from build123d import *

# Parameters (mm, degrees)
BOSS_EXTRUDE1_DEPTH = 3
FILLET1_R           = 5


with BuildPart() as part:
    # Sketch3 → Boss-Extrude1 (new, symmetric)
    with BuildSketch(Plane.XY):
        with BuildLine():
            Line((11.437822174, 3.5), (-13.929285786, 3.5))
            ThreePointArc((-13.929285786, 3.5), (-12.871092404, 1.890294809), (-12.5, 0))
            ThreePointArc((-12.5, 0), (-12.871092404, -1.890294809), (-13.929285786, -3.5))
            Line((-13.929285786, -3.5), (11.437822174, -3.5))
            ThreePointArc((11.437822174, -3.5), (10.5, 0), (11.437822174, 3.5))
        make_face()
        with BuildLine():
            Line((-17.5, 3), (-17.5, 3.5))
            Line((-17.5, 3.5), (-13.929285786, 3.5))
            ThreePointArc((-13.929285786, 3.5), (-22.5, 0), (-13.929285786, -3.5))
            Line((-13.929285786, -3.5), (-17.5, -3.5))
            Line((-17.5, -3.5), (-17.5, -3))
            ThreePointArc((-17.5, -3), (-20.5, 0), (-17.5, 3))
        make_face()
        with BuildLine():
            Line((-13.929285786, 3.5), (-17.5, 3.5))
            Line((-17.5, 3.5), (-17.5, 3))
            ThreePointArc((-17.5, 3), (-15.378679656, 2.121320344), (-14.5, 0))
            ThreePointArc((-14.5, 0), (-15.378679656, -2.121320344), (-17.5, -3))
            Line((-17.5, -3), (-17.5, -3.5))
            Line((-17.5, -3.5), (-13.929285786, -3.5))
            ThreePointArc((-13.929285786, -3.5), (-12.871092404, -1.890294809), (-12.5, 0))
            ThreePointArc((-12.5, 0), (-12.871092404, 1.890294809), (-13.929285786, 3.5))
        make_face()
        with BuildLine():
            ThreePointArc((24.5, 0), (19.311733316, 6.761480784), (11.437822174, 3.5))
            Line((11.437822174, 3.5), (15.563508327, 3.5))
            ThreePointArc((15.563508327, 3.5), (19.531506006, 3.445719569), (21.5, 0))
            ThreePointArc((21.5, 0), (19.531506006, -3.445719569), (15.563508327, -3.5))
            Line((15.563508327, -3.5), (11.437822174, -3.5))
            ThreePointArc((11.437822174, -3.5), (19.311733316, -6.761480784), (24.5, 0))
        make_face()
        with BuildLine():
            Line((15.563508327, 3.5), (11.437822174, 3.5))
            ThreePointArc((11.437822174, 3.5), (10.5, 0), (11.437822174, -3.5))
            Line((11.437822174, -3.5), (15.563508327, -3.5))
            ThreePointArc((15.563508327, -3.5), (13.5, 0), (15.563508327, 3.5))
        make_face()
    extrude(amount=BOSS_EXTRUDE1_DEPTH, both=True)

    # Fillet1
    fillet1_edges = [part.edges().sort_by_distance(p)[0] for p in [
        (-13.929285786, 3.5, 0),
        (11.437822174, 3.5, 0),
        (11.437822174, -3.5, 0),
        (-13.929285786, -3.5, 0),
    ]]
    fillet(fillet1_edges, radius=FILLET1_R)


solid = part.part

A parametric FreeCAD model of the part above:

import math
import FreeCAD as App
import Part
import Sketcher
Q = App.Units.Quantity


def edges_at(feature, points):
    """Names of the edges that pass closest to the given points."""
    edges = feature.Shape.Edges
    near = lambda p: min(range(len(edges)), key=lambda i: edges[i].distToShape(Part.Vertex(*p))[0])
    return sorted({f"Edge{near(p) + 1}" for p in points})

doc = App.newDocument("Part")
params = doc.addObject("Spreadsheet::Sheet", "Params")
for row, (alias, value) in enumerate([
    ("sketch1_radius", "5 mm"),
    ("sketch1_radius2", "7 mm"),
    ("sketch1_radius3", "4 mm"),
    ("sketch1_radius4", "3 mm"),
    ("pad1_length", "6 mm"),
    ("fillet_radius", "5 mm"),
], start=1):
    params.set(f"A{row}", alias)
    params.set(f"B{row}", "=" + value)
    params.setAlias(f"B{row}", alias)

body = doc.addObject("PartDesign::Body", "Body")

sketch1 = doc.addObject("Sketcher::SketchObject", "Sketch")
body.addObject(sketch1)
sketch1.AttachmentSupport = (doc.XY_Plane, [""])
sketch1.MapMode = "FlatFace"
sketch1.addGeometry([
    Part.LineSegment(App.Vector(11.4, 3.5, 0), App.Vector(-13.9, 3.5, 0)),
    Part.ArcOfCircle(Part.Circle(App.Vector(-17.5, 0, 0), App.Vector(0, 0, 1), 5), math.radians(44), math.radians(316)),
    Part.LineSegment(App.Vector(-13.9, -3.5, 0), App.Vector(11.4, -3.5, 0)),
    Part.ArcOfCircle(Part.Circle(App.Vector(17.5, 0, 0), App.Vector(0, 0, 1), 7), math.radians(-150), math.radians(0)),
    Part.ArcOfCircle(Part.Circle(App.Vector(17.5, 0, 0), App.Vector(0, 0, 1), 7), math.radians(0), math.radians(150)),
    Part.ArcOfCircle(Part.Circle(App.Vector(17.5, 0, 0), App.Vector(0, 0, 1), 4), math.radians(119), math.radians(241)),
    Part.ArcOfCircle(Part.Circle(App.Vector(17.5, 0, 0), App.Vector(0, 0, 1), 4), math.radians(0), math.radians(119)),
    Part.ArcOfCircle(Part.Circle(App.Vector(17.5, 0, 0), App.Vector(0, 0, 1), 4), math.radians(-119), math.radians(0)),
    Part.ArcOfCircle(Part.Circle(App.Vector(-17.5, 0, 0), App.Vector(0, 0, 1), 3), math.radians(-90), math.radians(0)),
    Part.ArcOfCircle(Part.Circle(App.Vector(-17.5, 0, 0), App.Vector(0, 0, 1), 3), math.radians(90), math.radians(270)),
    Part.ArcOfCircle(Part.Circle(App.Vector(-17.5, 0, 0), App.Vector(0, 0, 1), 3), math.radians(0), math.radians(90)),
], False)
sketch1.addConstraint([
    Sketcher.Constraint("Coincident", 0, 2, 1, 1),
    Sketcher.Constraint("Coincident", 1, 2, 2, 1),
    Sketcher.Constraint("Coincident", 2, 2, 3, 1),
    Sketcher.Constraint("Tangent", 3, 2, 4, 1),
    Sketcher.Constraint("Coincident", 4, 2, 0, 1),
    Sketcher.Constraint("Tangent", 5, 1, 6, 2),
    Sketcher.Constraint("Tangent", 6, 1, 7, 2),
    Sketcher.Constraint("Tangent", 7, 1, 5, 2),
    Sketcher.Constraint("Tangent", 8, 1, 9, 2),
    Sketcher.Constraint("Tangent", 9, 1, 10, 2),
    Sketcher.Constraint("Tangent", 10, 1, 8, 2),
    Sketcher.Constraint("Horizontal", 0),
    Sketcher.Constraint("Horizontal", 2),
    Sketcher.Constraint("Coincident", 5, 3, 3, 3),
    Sketcher.Constraint("Coincident", 8, 3, 1, 3),
    Sketcher.Constraint("Equal", 3, 4),
    Sketcher.Constraint("Symmetric", 1, 3, 3, 3, -1, 1),
    Sketcher.Constraint("Symmetric", 0, 2, 1, 2, -1),
    Sketcher.Constraint("PointOnObject", 3, 2, -1),
    Sketcher.Constraint("PointOnObject", 6, 1, -1),
    Sketcher.Constraint("PointOnObject", 10, 1, -1),
    Sketcher.Constraint("Horizontal", 4, 2, 5, 1),
    Sketcher.Constraint("Horizontal", 2, 2, 7, 1),
    Sketcher.Constraint("Vertical", 10, 3, 8, 1),
    Sketcher.Constraint("Vertical", 8, 1, 9, 1),
    Sketcher.Constraint("Radius", 1, Q("5 mm")),
    Sketcher.Constraint("Radius", 3, Q("7 mm")),
    Sketcher.Constraint("Radius", 5, Q("4 mm")),
    Sketcher.Constraint("Radius", 8, Q("3 mm")),
    Sketcher.Constraint("DistanceX", 1, 3, 3, 3, Q("35 mm")),
    Sketcher.Constraint("DistanceY", 1, 2, 0, 2, Q("7 mm")),
])
sketch1.setExpression("Constraints[25]", "Params.sketch1_radius")
sketch1.setExpression("Constraints[26]", "Params.sketch1_radius2")
sketch1.setExpression("Constraints[27]", "Params.sketch1_radius3")
sketch1.setExpression("Constraints[28]", "Params.sketch1_radius4")
pad1 = doc.addObject("PartDesign::Pad", "Pad")
body.addObject(pad1)
pad1.Profile = sketch1
pad1.setExpression("Length", "Params.pad1_length")
pad1.Midplane = True
doc.recompute()

fillet = doc.addObject("PartDesign::Fillet", "Fillet")
body.addObject(fillet)
fillet.Base = (pad1, edges_at(pad1, [
    (-13.929, 3.5, -1.5),
    (11.438, 3.5, -1.5),
    (11.438, -3.5, -1.5),
    (-13.929, -3.5, -1.5),
]))
fillet.setExpression("Radius", "Params.fillet_radius")

doc.recompute()
